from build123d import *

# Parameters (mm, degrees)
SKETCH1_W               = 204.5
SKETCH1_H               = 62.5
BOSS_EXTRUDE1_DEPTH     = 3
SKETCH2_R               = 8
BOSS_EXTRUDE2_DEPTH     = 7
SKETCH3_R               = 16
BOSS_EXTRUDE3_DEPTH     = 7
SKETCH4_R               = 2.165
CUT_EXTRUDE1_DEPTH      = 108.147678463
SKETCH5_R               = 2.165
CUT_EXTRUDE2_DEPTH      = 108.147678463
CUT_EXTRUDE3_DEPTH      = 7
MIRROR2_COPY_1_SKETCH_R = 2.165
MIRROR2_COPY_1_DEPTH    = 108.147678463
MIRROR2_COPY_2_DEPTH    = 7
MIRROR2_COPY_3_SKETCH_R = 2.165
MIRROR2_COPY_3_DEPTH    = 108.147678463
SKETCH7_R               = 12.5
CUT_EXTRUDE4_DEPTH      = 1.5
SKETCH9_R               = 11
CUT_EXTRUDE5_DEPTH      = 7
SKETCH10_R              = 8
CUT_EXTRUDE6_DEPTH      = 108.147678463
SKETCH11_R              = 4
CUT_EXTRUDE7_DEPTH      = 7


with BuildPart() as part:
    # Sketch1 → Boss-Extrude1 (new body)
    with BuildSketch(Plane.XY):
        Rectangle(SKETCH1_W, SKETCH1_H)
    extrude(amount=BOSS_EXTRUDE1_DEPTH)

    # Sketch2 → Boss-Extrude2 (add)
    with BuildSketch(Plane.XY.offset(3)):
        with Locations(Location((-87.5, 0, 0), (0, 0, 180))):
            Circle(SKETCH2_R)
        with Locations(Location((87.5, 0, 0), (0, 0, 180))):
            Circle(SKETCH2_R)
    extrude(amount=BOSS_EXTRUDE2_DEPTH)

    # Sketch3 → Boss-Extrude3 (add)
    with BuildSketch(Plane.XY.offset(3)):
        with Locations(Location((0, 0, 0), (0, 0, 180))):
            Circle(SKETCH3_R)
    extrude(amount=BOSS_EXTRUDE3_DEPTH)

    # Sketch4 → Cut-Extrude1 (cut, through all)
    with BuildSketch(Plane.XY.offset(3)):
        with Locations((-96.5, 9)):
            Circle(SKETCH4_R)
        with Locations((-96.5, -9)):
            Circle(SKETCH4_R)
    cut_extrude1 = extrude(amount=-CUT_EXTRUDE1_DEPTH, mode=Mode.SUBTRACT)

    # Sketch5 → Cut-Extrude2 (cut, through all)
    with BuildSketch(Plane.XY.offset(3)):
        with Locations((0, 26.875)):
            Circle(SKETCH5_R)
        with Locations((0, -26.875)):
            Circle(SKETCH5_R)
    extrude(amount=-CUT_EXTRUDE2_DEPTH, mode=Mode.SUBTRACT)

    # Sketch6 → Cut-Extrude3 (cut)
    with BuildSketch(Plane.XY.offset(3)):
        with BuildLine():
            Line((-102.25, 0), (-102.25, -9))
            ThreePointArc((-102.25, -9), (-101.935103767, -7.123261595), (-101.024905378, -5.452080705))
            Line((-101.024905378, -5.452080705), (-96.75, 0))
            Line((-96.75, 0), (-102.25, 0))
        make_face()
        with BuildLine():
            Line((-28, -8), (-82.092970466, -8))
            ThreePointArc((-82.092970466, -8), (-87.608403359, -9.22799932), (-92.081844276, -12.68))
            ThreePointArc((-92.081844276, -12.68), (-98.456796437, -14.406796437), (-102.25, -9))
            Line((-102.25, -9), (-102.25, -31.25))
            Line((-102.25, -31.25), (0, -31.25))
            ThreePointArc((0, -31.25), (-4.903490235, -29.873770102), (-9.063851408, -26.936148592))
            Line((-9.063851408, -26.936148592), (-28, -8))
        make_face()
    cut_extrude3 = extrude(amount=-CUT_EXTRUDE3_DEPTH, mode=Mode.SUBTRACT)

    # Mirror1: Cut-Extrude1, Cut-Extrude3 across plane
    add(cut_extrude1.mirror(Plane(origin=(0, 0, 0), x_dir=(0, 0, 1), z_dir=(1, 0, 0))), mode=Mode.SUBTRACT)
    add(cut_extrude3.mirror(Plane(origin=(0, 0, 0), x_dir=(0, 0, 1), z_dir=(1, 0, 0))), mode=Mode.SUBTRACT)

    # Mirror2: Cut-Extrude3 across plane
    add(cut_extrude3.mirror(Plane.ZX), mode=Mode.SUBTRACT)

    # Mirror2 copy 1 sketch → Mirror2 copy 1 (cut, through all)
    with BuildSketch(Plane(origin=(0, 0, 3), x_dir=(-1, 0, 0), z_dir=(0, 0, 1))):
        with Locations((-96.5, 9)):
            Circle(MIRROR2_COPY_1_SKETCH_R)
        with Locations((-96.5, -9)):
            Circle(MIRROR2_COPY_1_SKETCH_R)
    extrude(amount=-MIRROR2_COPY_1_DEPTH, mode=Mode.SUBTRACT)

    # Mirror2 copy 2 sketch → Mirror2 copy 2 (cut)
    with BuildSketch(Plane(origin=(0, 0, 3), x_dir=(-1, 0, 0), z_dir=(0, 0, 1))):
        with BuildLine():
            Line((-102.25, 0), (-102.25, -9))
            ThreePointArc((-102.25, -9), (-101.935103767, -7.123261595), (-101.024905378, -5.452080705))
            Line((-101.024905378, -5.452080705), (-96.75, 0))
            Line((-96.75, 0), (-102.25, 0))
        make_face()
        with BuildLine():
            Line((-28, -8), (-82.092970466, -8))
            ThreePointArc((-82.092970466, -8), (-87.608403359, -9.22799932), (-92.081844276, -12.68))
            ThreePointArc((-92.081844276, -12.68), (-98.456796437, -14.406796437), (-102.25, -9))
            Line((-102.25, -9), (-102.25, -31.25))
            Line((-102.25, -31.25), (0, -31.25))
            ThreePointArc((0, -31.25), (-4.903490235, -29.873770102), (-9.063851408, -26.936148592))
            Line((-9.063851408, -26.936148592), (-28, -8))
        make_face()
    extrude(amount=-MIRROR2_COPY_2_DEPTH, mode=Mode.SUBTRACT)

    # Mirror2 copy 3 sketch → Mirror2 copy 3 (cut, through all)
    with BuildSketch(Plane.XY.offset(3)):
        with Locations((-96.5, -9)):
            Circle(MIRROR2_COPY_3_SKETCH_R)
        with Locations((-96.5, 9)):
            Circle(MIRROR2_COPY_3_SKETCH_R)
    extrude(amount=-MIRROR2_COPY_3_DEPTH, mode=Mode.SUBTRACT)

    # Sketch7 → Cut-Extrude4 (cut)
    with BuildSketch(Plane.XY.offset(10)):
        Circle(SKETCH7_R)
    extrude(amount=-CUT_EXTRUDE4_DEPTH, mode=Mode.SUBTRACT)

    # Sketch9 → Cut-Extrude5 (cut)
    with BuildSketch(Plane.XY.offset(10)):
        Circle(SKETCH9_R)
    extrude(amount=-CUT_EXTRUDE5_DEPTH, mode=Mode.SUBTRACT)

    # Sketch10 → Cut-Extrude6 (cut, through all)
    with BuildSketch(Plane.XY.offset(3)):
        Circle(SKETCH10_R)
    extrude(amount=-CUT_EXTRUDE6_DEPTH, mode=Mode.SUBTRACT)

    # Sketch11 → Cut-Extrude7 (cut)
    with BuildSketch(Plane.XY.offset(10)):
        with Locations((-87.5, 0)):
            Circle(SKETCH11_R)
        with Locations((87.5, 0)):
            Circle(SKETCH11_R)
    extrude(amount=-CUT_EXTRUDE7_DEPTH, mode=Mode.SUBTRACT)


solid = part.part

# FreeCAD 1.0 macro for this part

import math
import FreeCAD as App
import Part
import Sketcher
Q = App.Units.Quantity


def add_polygon(sketch, points):
    """Adds a closed chain of lines whose ends are joined by coincident constraints."""
    first, n = sketch.GeometryCount, len(points)
    for a, b in zip(points, points[1:] + points[:1]):
        sketch.addGeometry(Part.LineSegment(App.Vector(*a, 0), App.Vector(*b, 0)), False)
    for i in range(n):
        sketch.addConstraint(Sketcher.Constraint("Coincident", first + i, 2, first + (i + 1) % n, 1))

doc = App.newDocument("Part")
params = doc.addObject("Spreadsheet::Sheet", "Params")
for row, (alias, value) in enumerate([
    ("sketch1_width", "204.5 mm"),
    ("sketch1_height", "62.5 mm"),
    ("pad1_length", "3 mm"),
    ("sketch2_diameter", "16 mm"),
    ("pad2_length", "7 mm"),
    ("sketch3_diameter", "32 mm"),
    ("pad3_length", "7 mm"),
    ("sketch4_diameter", "4.33 mm"),
    ("sketch5_diameter", "4.33 mm"),
    ("sketch6_radius", "13 mm"),
    ("sketch6_radius2", "15 mm"),
    ("sketch6_height", "9 mm"),
    ("sketch6_radius3", "5.75 mm"),
    ("sketch6_width", "5.5 mm"),
    ("pocket3_length", "7 mm"),
    ("sketch7_diameter", "4.33 mm"),
    ("sketch8_radius", "13 mm"),
    ("sketch8_radius2", "15 mm"),
    ("sketch8_height", "9 mm"),
    ("sketch8_radius3", "5.75 mm"),
    ("sketch8_width", "5.5 mm"),
    ("pocket5_length", "7 mm"),
    ("sketch9_diameter", "4.33 mm"),
    ("sketch10_diameter", "25 mm"),
    ("pocket7_length", "1.5 mm"),
    ("sketch11_diameter", "22 mm"),
    ("pocket8_length", "7 mm"),
    ("sketch12_diameter", "16 mm"),
    ("sketch13_diameter", "8 mm"),
    ("pocket10_length", "7 mm"),
], start=1):
    params.set(f"A{row}", alias)
    params.set(f"B{row}", "=" + value)
    params.setAlias(f"B{row}", alias)

body = doc.addObject("PartDesign::Body", "Body")

sketch1 = body.newObject("Sketcher::SketchObject", "Sketch")
sketch1.AttachmentSupport = (doc.getObject("XY_Plane"), [""])
sketch1.MapMode = "FlatFace"
add_polygon(sketch1, [(-102, 31), (-102, -31), (102, -31), (102, 31)])
sketch1.addConstraint([
    Sketcher.Constraint("Vertical", 0),
    Sketcher.Constraint("Horizontal", 1),
    Sketcher.Constraint("Vertical", 2),
    Sketcher.Constraint("Horizontal", 3),
    Sketcher.Constraint("Symmetric", 0, 2, 2, 2, -1, 1),
    Sketcher.Constraint("DistanceX", 1, 1, 1, 2, 204.5),
    Sketcher.Constraint("DistanceY", 0, 2, 0, 1, 62.5),
])
sketch1.setExpression("Constraints[9]", "Params.sketch1_width")
sketch1.setExpression("Constraints[10]", "Params.sketch1_height")
pad1 = body.newObject("PartDesign::Pad", "Pad")
pad1.Profile = sketch1
pad1.setExpression("Length", "Params.pad1_length")

sketch2 = body.newObject("Sketcher::SketchObject", "Sketch001")
sketch2.AttachmentSupport = (doc.getObject("XY_Plane"), [""])
sketch2.MapMode = "FlatFace"
sketch2.AttachmentOffset = App.Placement(App.Vector(0, 0, 3), App.Rotation())
sketch2.addGeometry([
    Part.Circle(App.Vector(-88, 0, 0), App.Vector(0, 0, 1), 8),
    Part.Circle(App.Vector(88, 0, 0), App.Vector(0, 0, 1), 8),
], False)
sketch2.addConstraint([
    Sketcher.Constraint("Equal", 0, 1),
    Sketcher.Constraint("Symmetric", 0, 3, 1, 3, -1, 1),
    Sketcher.Constraint("PointOnObject", 0, 3, -1),
    Sketcher.Constraint("Diameter", 0, 16.0),
    Sketcher.Constraint("DistanceX", 0, 3, 1, 3, 175.0),
])
sketch2.setExpression("Constraints[3]", "Params.sketch2_diameter")
pad2 = body.newObject("PartDesign::Pad", "Pad001")
pad2.Profile = sketch2
pad2.setExpression("Length", "Params.pad2_length")

sketch3 = body.newObject("Sketcher::SketchObject", "Sketch002")
sketch3.AttachmentSupport = (doc.getObject("XY_Plane"), [""])
sketch3.MapMode = "FlatFace"
sketch3.AttachmentOffset = App.Placement(App.Vector(0, 0, 3), App.Rotation())
sketch3.addGeometry(Part.Circle(App.Vector(0, 0, 0), App.Vector(0, 0, 1), 16), False)
sketch3.addConstraint([
    Sketcher.Constraint("Coincident", 0, 3, -1, 1),
    Sketcher.Constraint("Diameter", 0, 32.0),
])
sketch3.setExpression("Constraints[1]", "Params.sketch3_diameter")
pad3 = body.newObject("PartDesign::Pad", "Pad002")
pad3.Profile = sketch3
pad3.setExpression("Length", "Params.pad3_length")

sketch4 = body.newObject("Sketcher::SketchObject", "Sketch003")
sketch4.AttachmentSupport = (doc.getObject("XY_Plane"), [""])
sketch4.MapMode = "FlatFace"
sketch4.AttachmentOffset = App.Placement(App.Vector(0, 0, 3), App.Rotation())
sketch4.addGeometry([
    Part.Circle(App.Vector(-96.5, 9, 0), App.Vector(0, 0, 1), 2.2),
    Part.Circle(App.Vector(-96.5, -9, 0), App.Vector(0, 0, 1), 2.2),
], False)
sketch4.addConstraint([
    Sketcher.Constraint("Equal", 0, 1),
    Sketcher.Constraint("Symmetric", 0, 3, 1, 3, -1),
    Sketcher.Constraint("Diameter", 0, 4.33),
    Sketcher.Constraint("DistanceY", -1, 1, 0, 3, 9.0),
    Sketcher.Constraint("DistanceX", 0, 3, -1, 1, 96.5),
])
sketch4.setExpression("Constraints[2]", "Params.sketch4_diameter")
pocket1 = body.newObject("PartDesign::Pocket", "Pocket")
pocket1.Profile = sketch4
pocket1.Type = "ThroughAll"

sketch5 = body.newObject("Sketcher::SketchObject", "Sketch004")
sketch5.AttachmentSupport = (doc.getObject("XY_Plane"), [""])
sketch5.MapMode = "FlatFace"
sketch5.AttachmentOffset = App.Placement(App.Vector(0, 0, 3), App.Rotation())
sketch5.addGeometry([
    Part.Circle(App.Vector(0, 26.9, 0), App.Vector(0, 0, 1), 2.2),
    Part.Circle(App.Vector(0, -26.9, 0), App.Vector(0, 0, 1), 2.2),
], False)
sketch5.addConstraint([
    Sketcher.Constraint("Equal", 0, 1),
    Sketcher.Constraint("Symmetric", 0, 3, 1, 3, -1, 1),
    Sketcher.Constraint("PointOnObject", 0, 3, -2),
    Sketcher.Constraint("Diameter", 0, 4.33),
    Sketcher.Constraint("DistanceY", 1, 3, 0, 3, 53.75),
])
sketch5.setExpression("Constraints[3]", "Params.sketch5_diameter")
pocket2 = body.newObject("PartDesign::Pocket", "Pocket001")
pocket2.Profile = sketch5
pocket2.Type = "ThroughAll"

sketch6 = body.newObject("Sketcher::SketchObject", "Sketch005")
sketch6.AttachmentSupport = (doc.getObject("XY_Plane"), [""])
sketch6.MapMode = "FlatFace"
sketch6.AttachmentOffset = App.Placement(App.Vector(0, 0, 3), App.Rotation())
sketch6.addGeometry([
    Part.LineSegment(App.Vector(-102.2, 0, 0), App.Vector(-102.2, -9, 0)),
    Part.ArcOfCircle(Part.Circle(App.Vector(-96.5, -9, 0), App.Vector(0, 0, 1), 5.8), math.radians(142), math.radians(180)),
    Part.LineSegment(App.Vector(-101, -5.5, 0), App.Vector(-96.8, 0, 0)),
    Part.LineSegment(App.Vector(-96.8, 0, 0), App.Vector(-102.2, 0, 0)),
    Part.LineSegment(App.Vector(-28, -8, 0), App.Vector(-82.1, -8, 0)),
    Part.ArcOfCircle(Part.Circle(App.Vector(-82.1, -21, 0), App.Vector(0, 0, 1), 13), math.radians(90), math.radians(140)),
    Part.ArcOfCircle(Part.Circle(App.Vector(-96.5, -9, 0), App.Vector(0, 0, 1), 5.8), math.radians(180), math.radians(320)),
    Part.LineSegment(App.Vector(-102.2, -9, 0), App.Vector(-102.2, -31.2, 0)),
    Part.LineSegment(App.Vector(-102.2, -31.2, 0), App.Vector(0, -31.2, 0)),
    Part.ArcOfCircle(Part.Circle(App.Vector(1.5, -16.3, 0), App.Vector(0, 0, 1), 15), math.radians(-135), math.radians(-96)),
    Part.LineSegment(App.Vector(-9.1, -26.9, 0), App.Vector(-28, -8, 0)),
], False)
sketch6.addConstraint([
    Sketcher.Constraint("Tangent", 0, 2, 1, 2),
    Sketcher.Constraint("Tangent", 1, 1, 2, 1),
    Sketcher.Constraint("Coincident", 2, 2, 3, 1),
    Sketcher.Constraint("Coincident", 3, 2, 0, 1),
    Sketcher.Constraint("Tangent", 4, 2, 5, 1),
    Sketcher.Constraint("Tangent", 5, 2, 6, 2),
    Sketcher.Constraint("Tangent", 6, 1, 7, 1),
    Sketcher.Constraint("Coincident", 7, 2, 8, 1),
    Sketcher.Constraint("Coincident", 8, 2, 9, 2),
    Sketcher.Constraint("Tangent", 9, 1, 10, 1),
    Sketcher.Constraint("Coincident", 10, 2, 4, 1),
    Sketcher.Constraint("Vertical", 0),
    Sketcher.Constraint("Horizontal", 3),
    Sketcher.Constraint("Horizontal", 4),
    Sketcher.Constraint("Vertical", 7),
    Sketcher.Constraint("Horizontal", 8),
    Sketcher.Constraint("Coincident", 6, 3, 1, 3),
    Sketcher.Constraint("Equal", 1, 6),
    Sketcher.Constraint("PointOnObject", 2, 2, -1),
    Sketcher.Constraint("PointOnObject", 8, 2, -2),
    Sketcher.Constraint("Radius", 5, 13.0),
    Sketcher.Constraint("Radius", 9, 15.0),
    Sketcher.Constraint("DistanceY", 0, 2, 0, 1, 9.0),
    Sketcher.Constraint("Angle", 10, Q("135 deg")),
    Sketcher.Constraint("Radius", 1, 5.75),
    Sketcher.Constraint("DistanceX", 3, 2, 3, 1, 5.5),
    Sketcher.Constraint("DistanceY", 5, 3, -1, 1, 21.0),
    Sketcher.Constraint("DistanceX", 10, 2, -1, 1, 28.0),
    Sketcher.Constraint("DistanceX", 8, 1, 8, 2, 102.25),
    Sketcher.Constraint("DistanceY", 7, 2, 7, 1, 22.25),
])
sketch6.setExpression("Constraints[20]", "Params.sketch6_radius")
sketch6.setExpression("Constraints[21]", "Params.sketch6_radius2")
sketch6.setExpression("Constraints[22]", "Params.sketch6_height")
sketch6.setExpression("Constraints[24]", "Params.sketch6_radius3")
sketch6.setExpression("Constraints[25]", "Params.sketch6_width")
pocket3 = body.newObject("PartDesign::Pocket", "Pocket002")
pocket3.Profile = sketch6
pocket3.setExpression("Length", "Params.pocket3_length")
doc.recompute()

mirrored = body.newObject("PartDesign::Mirrored", "Mirrored")
mirrored.Originals = [pocket1, pocket3]
mirrored.MirrorPlane = (doc.getObject("YZ_Plane"), [""])
body.Tip = mirrored
doc.recompute()

mirrored2 = body.newObject("PartDesign::Mirrored", "Mirrored001")
mirrored2.Originals = [pocket3]
mirrored2.MirrorPlane = (doc.getObject("XZ_Plane"), [""])
body.Tip = mirrored2

sketch7 = body.newObject("Sketcher::SketchObject", "Sketch006")
sketch7.AttachmentSupport = (doc.getObject("XY_Plane"), [""])
sketch7.MapMode = "FlatFace"
sketch7.AttachmentOffset = App.Placement(App.Vector(0, 0, 3), App.Rotation())
sketch7.addGeometry([
    Part.Circle(App.Vector(96.5, -9, 0), App.Vector(0, 0, 1), 2.2),
    Part.Circle(App.Vector(96.5, 9, 0), App.Vector(0, 0, 1), 2.2),
], False)
sketch7.addConstraint([
    Sketcher.Constraint("Equal", 0, 1),
    Sketcher.Constraint("Symmetric", 0, 3, 1, 3, -1),
    Sketcher.Constraint("Diameter", 0, 4.33),
    Sketcher.Constraint("DistanceY", 0, 3, -1, 1, 9.0),
    Sketcher.Constraint("DistanceX", -1, 1, 0, 3, 96.5),
])
sketch7.setExpression("Constraints[2]", "Params.sketch7_diameter")
pocket4 = body.newObject("PartDesign::Pocket", "Pocket003")
pocket4.Profile = sketch7
pocket4.Type = "ThroughAll"

sketch8 = body.newObject("Sketcher::SketchObject", "Sketch007")
sketch8.AttachmentSupport = (doc.getObject("XY_Plane"), [""])
sketch8.MapMode = "FlatFace"
sketch8.AttachmentOffset = App.Placement(App.Vector(0, 0, 3), App.Rotation())
sketch8.addGeometry([
    Part.LineSegment(App.Vector(102.2, 0, 0), App.Vector(102.2, 9, 0)),
    Part.ArcOfCircle(Part.Circle(App.Vector(96.5, 9, 0), App.Vector(0, 0, 1), 5.8), math.radians(-38), math.radians(0)),
    Part.LineSegment(App.Vector(101, 5.5, 0), App.Vector(96.8, 0, 0)),
    Part.LineSegment(App.Vector(96.8, 0, 0), App.Vector(102.2, 0, 0)),
    Part.LineSegment(App.Vector(28, 8, 0), App.Vector(82.1, 8, 0)),
    Part.ArcOfCircle(Part.Circle(App.Vector(82.1, 21, 0), App.Vector(0, 0, 1), 13), math.radians(-90), math.radians(-40)),
    Part.ArcOfCircle(Part.Circle(App.Vector(96.5, 9, 0), App.Vector(0, 0, 1), 5.8), math.radians(0), math.radians(140)),
    Part.LineSegment(App.Vector(102.2, 9, 0), App.Vector(102.2, 31.2, 0)),
    Part.LineSegment(App.Vector(102.2, 31.2, 0), App.Vector(0, 31.2, 0)),
    Part.ArcOfCircle(Part.Circle(App.Vector(-1.5, 16.3, 0), App.Vector(0, 0, 1), 15), math.radians(45), math.radians(84)),
    Part.LineSegment(App.Vector(9.1, 26.9, 0), App.Vector(28, 8, 0)),
], False)
sketch8.addConstraint([
    Sketcher.Constraint("Tangent", 0, 2, 1, 2),
    Sketcher.Constraint("Tangent", 1, 1, 2, 1),
    Sketcher.Constraint("Coincident", 2, 2, 3, 1),
    Sketcher.Constraint("Coincident", 3, 2, 0, 1),
    Sketcher.Constraint("Tangent", 4, 2, 5, 1),
    Sketcher.Constraint("Tangent", 5, 2, 6, 2),
    Sketcher.Constraint("Tangent", 6, 1, 7, 1),
    Sketcher.Constraint("Coincident", 7, 2, 8, 1),
    Sketcher.Constraint("Coincident", 8, 2, 9, 2),
    Sketcher.Constraint("Tangent", 9, 1, 10, 1),
    Sketcher.Constraint("Coincident", 10, 2, 4, 1),
    Sketcher.Constraint("Vertical", 0),
    Sketcher.Constraint("Horizontal", 3),
    Sketcher.Constraint("Horizontal", 4),
    Sketcher.Constraint("Vertical", 7),
    Sketcher.Constraint("Horizontal", 8),
    Sketcher.Constraint("Coincident", 6, 3, 1, 3),
    Sketcher.Constraint("Equal", 1, 6),
    Sketcher.Constraint("PointOnObject", 2, 2, -1),
    Sketcher.Constraint("PointOnObject", 8, 2, -2),
    Sketcher.Constraint("Radius", 5, 13.0),
    Sketcher.Constraint("Radius", 9, 15.0),
    Sketcher.Constraint("DistanceY", 0, 1, 0, 2, 9.0),
    Sketcher.Constraint("Angle", 10, Q("-45 deg")),
    Sketcher.Constraint("Radius", 1, 5.75),
    Sketcher.Constraint("DistanceX", 3, 1, 3, 2, 5.5),
    Sketcher.Constraint("DistanceY", -1, 1, 5, 3, 21.0),
    Sketcher.Constraint("DistanceX", -1, 1, 10, 2, 28.0),
    Sketcher.Constraint("DistanceX", 8, 2, 8, 1, 102.25),
    Sketcher.Constraint("DistanceY", 7, 1, 7, 2, 22.25),
])
sketch8.setExpression("Constraints[20]", "Params.sketch8_radius")
sketch8.setExpression("Constraints[21]", "Params.sketch8_radius2")
sketch8.setExpression("Constraints[22]", "Params.sketch8_height")
sketch8.setExpression("Constraints[24]", "Params.sketch8_radius3")
sketch8.setExpression("Constraints[25]", "Params.sketch8_width")
pocket5 = body.newObject("PartDesign::Pocket", "Pocket004")
pocket5.Profile = sketch8
pocket5.setExpression("Length", "Params.pocket5_length")

sketch9 = body.newObject("Sketcher::SketchObject", "Sketch008")
sketch9.AttachmentSupport = (doc.getObject("XY_Plane"), [""])
sketch9.MapMode = "FlatFace"
sketch9.AttachmentOffset = App.Placement(App.Vector(0, 0, 3), App.Rotation())
sketch9.addGeometry([
    Part.Circle(App.Vector(-96.5, -9, 0), App.Vector(0, 0, 1), 2.2),
    Part.Circle(App.Vector(-96.5, 9, 0), App.Vector(0, 0, 1), 2.2),
], False)
sketch9.addConstraint([
    Sketcher.Constraint("Equal", 0, 1),
    Sketcher.Constraint("Symmetric", 0, 3, 1, 3, -1),
    Sketcher.Constraint("Diameter", 0, 4.33),
    Sketcher.Constraint("DistanceY", 0, 3, -1, 1, 9.0),
    Sketcher.Constraint("DistanceX", 0, 3, -1, 1, 96.5),
])
sketch9.setExpression("Constraints[2]", "Params.sketch9_diameter")
pocket6 = body.newObject("PartDesign::Pocket", "Pocket005")
pocket6.Profile = sketch9
pocket6.Type = "ThroughAll"

sketch10 = body.newObject("Sketcher::SketchObject", "Sketch009")
sketch10.AttachmentSupport = (doc.getObject("XY_Plane"), [""])
sketch10.MapMode = "FlatFace"
sketch10.AttachmentOffset = App.Placement(App.Vector(0, 0, 10), App.Rotation())
sketch10.addGeometry(Part.Circle(App.Vector(0, 0, 0), App.Vector(0, 0, 1), 12), False)
sketch10.addConstraint([
    Sketcher.Constraint("Coincident", 0, 3, -1, 1),
    Sketcher.Constraint("Diameter", 0, 25.0),
])
sketch10.setExpression("Constraints[1]", "Params.sketch10_diameter")
pocket7 = body.newObject("PartDesign::Pocket", "Pocket006")
pocket7.Profile = sketch10
pocket7.setExpression("Length", "Params.pocket7_length")

sketch11 = body.newObject("Sketcher::SketchObject", "Sketch010")
sketch11.AttachmentSupport = (doc.getObject("XY_Plane"), [""])
sketch11.MapMode = "FlatFace"
sketch11.AttachmentOffset = App.Placement(App.Vector(0, 0, 10), App.Rotation())
sketch11.addGeometry(Part.Circle(App.Vector(0, 0, 0), App.Vector(0, 0, 1), 11), False)
sketch11.addConstraint([
    Sketcher.Constraint("Coincident", 0, 3, -1, 1),
    Sketcher.Constraint("Diameter", 0, 22.0),
])
sketch11.setExpression("Constraints[1]", "Params.sketch11_diameter")
pocket8 = body.newObject("PartDesign::Pocket", "Pocket007")
pocket8.Profile = sketch11
pocket8.setExpression("Length", "Params.pocket8_length")

sketch12 = body.newObject("Sketcher::SketchObject", "Sketch011")
sketch12.AttachmentSupport = (doc.getObject("XY_Plane"), [""])
sketch12.MapMode = "FlatFace"
sketch12.AttachmentOffset = App.Placement(App.Vector(0, 0, 3), App.Rotation())
sketch12.addGeometry(Part.Circle(App.Vector(0, 0, 0), App.Vector(0, 0, 1), 8), False)
sketch12.addConstraint([
    Sketcher.Constraint("Coincident", 0, 3, -1, 1),
    Sketcher.Constraint("Diameter", 0, 16.0),
])
sketch12.setExpression("Constraints[1]", "Params.sketch12_diameter")
pocket9 = body.newObject("PartDesign::Pocket", "Pocket008")
pocket9.Profile = sketch12
pocket9.Type = "ThroughAll"

sketch13 = body.newObject("Sketcher::SketchObject", "Sketch012")
sketch13.AttachmentSupport = (doc.getObject("XY_Plane"), [""])
sketch13.MapMode = "FlatFace"
sketch13.AttachmentOffset = App.Placement(App.Vector(0, 0, 10), App.Rotation())
sketch13.addGeometry([
    Part.Circle(App.Vector(-87.5, 0, 0), App.Vector(0, 0, 1), 4),
    Part.Circle(App.Vector(87.5, 0, 0), App.Vector(0, 0, 1), 4),
], False)
sketch13.addConstraint([
    Sketcher.Constraint("Equal", 0, 1),
    Sketcher.Constraint("Symmetric", 0, 3, 1, 3, -1, 1),
    Sketcher.Constraint("PointOnObject", 0, 3, -1),
    Sketcher.Constraint("Diameter", 0, 8.0),
    Sketcher.Constraint("DistanceX", 0, 3, 1, 3, 175.0),
])
sketch13.setExpression("Constraints[3]", "Params.sketch13_diameter")
pocket10 = body.newObject("PartDesign::Pocket", "Pocket009")
pocket10.Profile = sketch13
pocket10.setExpression("Length", "Params.pocket10_length")

doc.recompute()
